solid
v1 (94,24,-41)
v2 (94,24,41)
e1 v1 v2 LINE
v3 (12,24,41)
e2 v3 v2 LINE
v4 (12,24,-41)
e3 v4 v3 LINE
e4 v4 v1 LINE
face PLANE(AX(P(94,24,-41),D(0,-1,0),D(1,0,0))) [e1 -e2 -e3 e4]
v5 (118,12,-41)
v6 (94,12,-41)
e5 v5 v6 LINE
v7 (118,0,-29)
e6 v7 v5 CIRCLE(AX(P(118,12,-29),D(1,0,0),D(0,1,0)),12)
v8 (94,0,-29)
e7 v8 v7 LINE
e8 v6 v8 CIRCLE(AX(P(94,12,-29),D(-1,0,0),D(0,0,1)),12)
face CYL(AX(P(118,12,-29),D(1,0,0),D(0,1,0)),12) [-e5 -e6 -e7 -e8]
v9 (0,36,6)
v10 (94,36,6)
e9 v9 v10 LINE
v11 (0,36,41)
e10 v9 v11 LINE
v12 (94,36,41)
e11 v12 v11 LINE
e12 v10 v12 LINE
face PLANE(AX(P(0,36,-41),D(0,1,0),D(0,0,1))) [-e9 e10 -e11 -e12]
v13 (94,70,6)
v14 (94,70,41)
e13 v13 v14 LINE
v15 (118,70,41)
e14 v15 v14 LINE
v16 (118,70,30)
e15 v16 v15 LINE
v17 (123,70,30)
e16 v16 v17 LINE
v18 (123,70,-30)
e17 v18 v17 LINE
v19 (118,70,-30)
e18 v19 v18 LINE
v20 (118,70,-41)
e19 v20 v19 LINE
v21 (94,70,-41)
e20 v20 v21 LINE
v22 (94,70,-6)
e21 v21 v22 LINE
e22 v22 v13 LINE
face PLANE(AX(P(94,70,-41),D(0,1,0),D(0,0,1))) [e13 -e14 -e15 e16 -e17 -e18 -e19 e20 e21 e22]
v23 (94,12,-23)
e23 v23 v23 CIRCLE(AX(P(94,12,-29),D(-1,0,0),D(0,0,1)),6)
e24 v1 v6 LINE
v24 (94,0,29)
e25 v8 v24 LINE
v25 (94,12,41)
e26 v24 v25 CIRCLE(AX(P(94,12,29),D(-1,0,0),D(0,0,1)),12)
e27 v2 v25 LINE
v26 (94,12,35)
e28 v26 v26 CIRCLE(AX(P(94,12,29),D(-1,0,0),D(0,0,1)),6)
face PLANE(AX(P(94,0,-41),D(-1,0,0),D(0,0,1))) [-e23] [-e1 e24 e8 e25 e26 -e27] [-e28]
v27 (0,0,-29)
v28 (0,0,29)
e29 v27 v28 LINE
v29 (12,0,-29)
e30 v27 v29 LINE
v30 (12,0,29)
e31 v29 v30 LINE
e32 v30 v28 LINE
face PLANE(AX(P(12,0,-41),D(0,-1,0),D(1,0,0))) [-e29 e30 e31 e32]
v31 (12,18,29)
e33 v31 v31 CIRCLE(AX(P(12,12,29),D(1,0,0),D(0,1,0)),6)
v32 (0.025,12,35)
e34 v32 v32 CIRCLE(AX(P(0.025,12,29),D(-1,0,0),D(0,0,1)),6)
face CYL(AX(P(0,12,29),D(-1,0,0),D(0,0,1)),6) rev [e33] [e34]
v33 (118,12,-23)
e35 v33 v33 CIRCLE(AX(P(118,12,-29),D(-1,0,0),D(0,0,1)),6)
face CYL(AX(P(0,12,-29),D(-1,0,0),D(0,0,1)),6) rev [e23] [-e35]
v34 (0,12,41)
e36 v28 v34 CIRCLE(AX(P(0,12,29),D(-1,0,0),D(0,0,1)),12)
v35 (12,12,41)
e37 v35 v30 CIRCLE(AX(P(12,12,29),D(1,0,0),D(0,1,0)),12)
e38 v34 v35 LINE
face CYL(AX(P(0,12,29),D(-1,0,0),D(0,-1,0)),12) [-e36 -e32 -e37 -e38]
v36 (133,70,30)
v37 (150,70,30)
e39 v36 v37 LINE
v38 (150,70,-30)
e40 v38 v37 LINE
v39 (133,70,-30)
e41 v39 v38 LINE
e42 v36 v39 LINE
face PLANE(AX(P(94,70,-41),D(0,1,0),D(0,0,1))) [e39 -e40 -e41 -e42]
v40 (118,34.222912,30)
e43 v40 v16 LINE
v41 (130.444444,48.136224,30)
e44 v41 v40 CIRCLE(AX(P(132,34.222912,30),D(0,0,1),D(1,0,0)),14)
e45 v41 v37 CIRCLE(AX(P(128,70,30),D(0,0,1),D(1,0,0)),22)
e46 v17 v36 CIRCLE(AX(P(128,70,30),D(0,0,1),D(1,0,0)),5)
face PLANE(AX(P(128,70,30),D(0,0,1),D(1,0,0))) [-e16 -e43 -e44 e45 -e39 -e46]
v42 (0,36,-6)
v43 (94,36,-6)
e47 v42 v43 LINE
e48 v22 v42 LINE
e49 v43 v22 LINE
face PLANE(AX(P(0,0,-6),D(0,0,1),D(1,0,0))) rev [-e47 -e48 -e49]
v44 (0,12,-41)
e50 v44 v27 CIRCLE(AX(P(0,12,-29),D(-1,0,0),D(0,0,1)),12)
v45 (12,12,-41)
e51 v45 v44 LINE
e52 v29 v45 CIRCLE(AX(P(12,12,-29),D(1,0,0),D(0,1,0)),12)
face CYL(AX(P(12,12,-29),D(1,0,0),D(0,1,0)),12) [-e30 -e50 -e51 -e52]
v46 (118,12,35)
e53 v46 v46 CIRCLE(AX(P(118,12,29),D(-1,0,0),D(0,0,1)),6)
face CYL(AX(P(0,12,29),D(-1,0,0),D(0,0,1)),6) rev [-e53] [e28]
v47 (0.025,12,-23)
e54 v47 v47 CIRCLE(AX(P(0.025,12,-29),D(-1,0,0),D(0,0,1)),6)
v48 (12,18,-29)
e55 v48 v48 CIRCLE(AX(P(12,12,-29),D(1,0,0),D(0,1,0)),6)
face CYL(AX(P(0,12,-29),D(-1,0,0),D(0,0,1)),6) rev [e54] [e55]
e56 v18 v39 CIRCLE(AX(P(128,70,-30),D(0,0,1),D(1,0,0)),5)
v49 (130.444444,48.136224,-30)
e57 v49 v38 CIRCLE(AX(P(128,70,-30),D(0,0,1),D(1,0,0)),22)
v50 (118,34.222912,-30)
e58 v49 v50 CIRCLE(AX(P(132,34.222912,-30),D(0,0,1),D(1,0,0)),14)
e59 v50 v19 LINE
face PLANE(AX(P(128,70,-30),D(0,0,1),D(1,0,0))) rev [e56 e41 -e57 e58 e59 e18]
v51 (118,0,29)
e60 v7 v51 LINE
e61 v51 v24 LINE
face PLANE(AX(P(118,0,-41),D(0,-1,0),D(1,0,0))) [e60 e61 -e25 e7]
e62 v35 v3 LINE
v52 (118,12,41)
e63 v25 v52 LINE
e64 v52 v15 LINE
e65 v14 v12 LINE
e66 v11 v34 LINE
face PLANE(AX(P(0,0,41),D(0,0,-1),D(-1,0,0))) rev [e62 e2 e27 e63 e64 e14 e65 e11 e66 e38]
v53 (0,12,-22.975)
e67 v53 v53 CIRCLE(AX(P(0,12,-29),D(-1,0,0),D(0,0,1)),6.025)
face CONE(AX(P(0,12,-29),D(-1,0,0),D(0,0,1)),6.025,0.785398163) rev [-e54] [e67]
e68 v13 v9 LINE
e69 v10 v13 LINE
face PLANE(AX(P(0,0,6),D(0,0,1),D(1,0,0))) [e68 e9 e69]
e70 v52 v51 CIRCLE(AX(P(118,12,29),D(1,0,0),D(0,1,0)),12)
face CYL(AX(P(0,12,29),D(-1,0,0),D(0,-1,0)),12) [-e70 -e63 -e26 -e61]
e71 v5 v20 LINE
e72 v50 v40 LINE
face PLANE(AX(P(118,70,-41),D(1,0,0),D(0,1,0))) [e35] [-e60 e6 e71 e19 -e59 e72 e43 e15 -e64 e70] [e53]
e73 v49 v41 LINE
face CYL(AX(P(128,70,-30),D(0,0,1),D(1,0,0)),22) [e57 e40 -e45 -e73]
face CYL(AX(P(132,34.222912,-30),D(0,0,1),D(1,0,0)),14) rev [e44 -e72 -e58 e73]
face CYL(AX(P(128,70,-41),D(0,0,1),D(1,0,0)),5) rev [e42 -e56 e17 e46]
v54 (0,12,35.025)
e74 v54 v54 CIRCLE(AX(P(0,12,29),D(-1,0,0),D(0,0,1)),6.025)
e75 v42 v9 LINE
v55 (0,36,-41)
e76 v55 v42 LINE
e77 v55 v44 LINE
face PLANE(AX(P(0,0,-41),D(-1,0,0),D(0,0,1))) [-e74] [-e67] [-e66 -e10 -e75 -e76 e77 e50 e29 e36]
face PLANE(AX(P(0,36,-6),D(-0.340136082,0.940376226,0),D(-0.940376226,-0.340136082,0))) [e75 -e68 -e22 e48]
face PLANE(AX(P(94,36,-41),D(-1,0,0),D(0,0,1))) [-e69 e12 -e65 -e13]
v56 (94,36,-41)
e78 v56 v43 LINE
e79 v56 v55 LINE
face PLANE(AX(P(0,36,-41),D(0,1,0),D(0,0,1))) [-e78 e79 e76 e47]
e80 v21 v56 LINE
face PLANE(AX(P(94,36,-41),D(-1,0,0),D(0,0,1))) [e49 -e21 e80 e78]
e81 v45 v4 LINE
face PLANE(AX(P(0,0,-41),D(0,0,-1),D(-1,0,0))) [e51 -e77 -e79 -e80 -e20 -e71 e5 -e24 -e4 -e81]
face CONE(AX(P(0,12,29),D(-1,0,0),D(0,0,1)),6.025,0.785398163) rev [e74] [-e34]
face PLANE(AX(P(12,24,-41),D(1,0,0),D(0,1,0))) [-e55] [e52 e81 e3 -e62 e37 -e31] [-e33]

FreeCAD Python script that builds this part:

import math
import FreeCAD as App
import Part
import Sketcher

V = App.Vector


def edges_at(feature, points):
    """Names of the edges that pass closest to the given points."""
    edges = feature.Shape.Edges
    near = lambda p: min(range(len(edges)), key=lambda i: edges[i].distToShape(Part.Vertex(*p))[0])
    return sorted({f"Edge{near(p) + 1}" for p in points})


def add_polygon(sketch, points):
    """Adds a closed chain of lines whose ends are joined by coincident constraints."""
    first, n = sketch.GeometryCount, len(points)
    for a, b in zip(points, points[1:] + points[:1]):
        sketch.addGeometry(Part.LineSegment(App.Vector(*a, 0), App.Vector(*b, 0)), False)
    for i in range(n):
        sketch.addConstraint(Sketcher.Constraint("Coincident", first + i, 2, first + (i + 1) % n, 1))

doc = App.newDocument("Part")
params = doc.addObject("Spreadsheet::Sheet", "Params")
for row, (alias, value) in enumerate([
    ("sketch1_width", "12 mm"),
    ("sketch1_width2", "82 mm"),
    ("sketch1_width3", "24 mm"),
    ("sketch1_height", "36 mm"),
    ("sketch1_height2", "70 mm"),
    ("pad1_length", "41 mm"),
    ("pad1_length2", "41 mm"),
    ("fillet_radius", "12 mm"),
    ("sketch2_diameter", "12 mm"),
    ("hole_diameter", "12 mm"),
    ("hole_csink_diameter", "12.05 mm"),
    ("sketch3_radius", "14 mm"),
    ("sketch3_radius2", "22 mm"),
    ("sketch3_width", "32 mm"),
    ("pad2_length", "30 mm"),
    ("pad2_length2", "30 mm"),
    ("sketch4_diameter", "10 mm"),
    ("sketch5_width", "94 mm"),
    ("sketch5_height", "34 mm"),
    ("pad3_length", "6 mm"),
    ("pad3_length2", "6 mm"),
], start=1):
    params.set(f"A{row}", alias)
    params.set(f"B{row}", "=" + value)
    params.setAlias(f"B{row}", alias)

body = doc.addObject("PartDesign::Body", "Body")

# Sketch on XY plane
sketch1 = body.newObject("Sketcher::SketchObject", "Sketch")
sketch1.AttachmentSupport = (doc.getObject("XY_Plane"), [""])
sketch1.MapMode = "FlatFace"
add_polygon(sketch1, [(0, 36), (0, 0), (12, 0), (12, 24), (94, 24), (94, 0), (118, 0), (118, 70), (94, 70), (94, 36)])  # lines 0-9
sketch1.addConstraint(Sketcher.Constraint("Vertical", 0))
sketch1.addConstraint(Sketcher.Constraint("Horizontal", 1))
sketch1.addConstraint(Sketcher.Constraint("Vertical", 2))
sketch1.addConstraint(Sketcher.Constraint("Horizontal", 3))
sketch1.addConstraint(Sketcher.Constraint("Vertical", 4))
sketch1.addConstraint(Sketcher.Constraint("Horizontal", 5))
sketch1.addConstraint(Sketcher.Constraint("Vertical", 6))
sketch1.addConstraint(Sketcher.Constraint("Horizontal", 7))
sketch1.addConstraint(Sketcher.Constraint("Vertical", 8))
sketch1.addConstraint(Sketcher.Constraint("Horizontal", 9))
sketch1.addConstraint(Sketcher.Constraint("Coincident", 0, 2, -1, 1))
sketch1.addConstraint(Sketcher.Constraint("PointOnObject", 4, 2, -1))
sketch1.addConstraint(Sketcher.Constraint("Vertical", 4, 2, 7, 2))
sketch1.addConstraint(Sketcher.Constraint("Equal", 7, 2))
sketch1.addConstraint(Sketcher.Constraint("DistanceX", 1, 1, 1, 2, 12.0))
sketch1.addConstraint(Sketcher.Constraint("DistanceX", 3, 1, 3, 2, 82.0))
sketch1.addConstraint(Sketcher.Constraint("DistanceX", 5, 1, 5, 2, 24.0))
sketch1.addConstraint(Sketcher.Constraint("DistanceY", 0, 2, 0, 1, 36.0))
sketch1.addConstraint(Sketcher.Constraint("DistanceY", 6, 1, 6, 2, 70.0))
sketch1.setExpression("Constraints[24]", "Params.sketch1_width")
sketch1.setExpression("Constraints[25]", "Params.sketch1_width2")
sketch1.setExpression("Constraints[26]", "Params.sketch1_width3")
sketch1.setExpression("Constraints[27]", "Params.sketch1_height")
sketch1.setExpression("Constraints[28]", "Params.sketch1_height2")
pad1 = body.newObject("PartDesign::Pad", "Pad")
pad1.Profile = sketch1
pad1.Type = "TwoLengths"
pad1.setExpression("Length", "Params.pad1_length")
pad1.setExpression("Length2", "Params.pad1_length2")
doc.recompute()

fillet = body.newObject("PartDesign::Fillet", "Fillet")
fillet.Base = (pad1, edges_at(pad1, [
    (106, 0, -41),
    (6, 0, 41),
    (106, 0, 41),
    (6, 0, -41),
]))
fillet.setExpression("Radius", "Params.fillet_radius")

# Sketch on YZ plane
sketch2 = body.newObject("Sketcher::SketchObject", "Sketch001")
sketch2.AttachmentSupport = (doc.getObject("YZ_Plane"), [""])
sketch2.MapMode = "FlatFace"
sketch2.addGeometry(Part.Circle(V(12, -29, 0), V(0, 0, 1), 6), False)
sketch2.addGeometry(Part.Circle(V(12, 29, 0), V(0, 0, 1), 6), False)
sketch2.addConstraint(Sketcher.Constraint("Equal", 0, 1))
sketch2.addConstraint(Sketcher.Constraint("Symmetric", 0, 3, 1, 3, -1))
sketch2.addConstraint(Sketcher.Constraint("Diameter", 0, 12.0))
sketch2.addConstraint(Sketcher.Constraint("DistanceX", -1, 1, 0, 3, 12.0))
sketch2.addConstraint(Sketcher.Constraint("DistanceY", 0, 3, -1, 1, 29.0))
sketch2.setExpression("Constraints[2]", "Params.sketch2_diameter")
doc.recompute()
hole = body.newObject("PartDesign::Hole", "Hole")
hole.Profile = sketch2
hole.ThreadType = "None"
hole.setExpression("Diameter", "Params.hole_diameter")
hole.DepthType = "ThroughAll"
hole.HoleCutType = "Countersink"
hole.setExpression("HoleCutDiameter", "Params.hole_csink_diameter")
hole.HoleCutCountersinkAngle = 90
hole.Reversed = True

# Sketch on XY plane
sketch3 = body.newObject("Sketcher::SketchObject", "Sketch002")
sketch3.AttachmentSupport = (doc.getObject("XY_Plane"), [""])
sketch3.MapMode = "FlatFace"
sketch3.addGeometry(Part.LineSegment(V(118, 70, 0), V(118, 34, 0)), False)
sketch3.addGeometry(Part.ArcOfCircle(Part.Circle(V(132, 34, 0), V(0, 0, 1), 14), math.radians(96), math.radians(180)), False)
sketch3.addGeometry(Part.ArcOfCircle(Part.Circle(V(128, 70, 0), V(0, 0, 1), 22), math.radians(-84), math.radians(0)), False)
sketch3.addGeometry(Part.LineSegment(V(150, 70, 0), V(118, 70, 0)), False)
sketch3.addConstraint(Sketcher.Constraint("Tangent", 0, 2, 1, 2))
sketch3.addConstraint(Sketcher.Constraint("Tangent", 1, 1, 2, 1))
sketch3.addConstraint(Sketcher.Constraint("Coincident", 2, 2, 3, 1))
sketch3.addConstraint(Sketcher.Constraint("Coincident", 3, 2, 0, 1))
sketch3.addConstraint(Sketcher.Constraint("Vertical", 0))
sketch3.addConstraint(Sketcher.Constraint("Horizontal", 3))
sketch3.addConstraint(Sketcher.Constraint("Radius", 1, 14.0))
sketch3.addConstraint(Sketcher.Constraint("Radius", 2, 22.0))
sketch3.addConstraint(Sketcher.Constraint("DistanceX", 3, 2, 3, 1, 32.0))
sketch3.addConstraint(Sketcher.Constraint("DistanceX", -1, 1, 1, 3, 132.0))
sketch3.addConstraint(Sketcher.Constraint("DistanceY", -1, 1, 2, 3, 70.0))
sketch3.addConstraint(Sketcher.Constraint("DistanceY", -1, 1, 2, 2, 70.0))
sketch3.setExpression("Constraints[6]", "Params.sketch3_radius")
sketch3.setExpression("Constraints[7]", "Params.sketch3_radius2")
sketch3.setExpression("Constraints[8]", "Params.sketch3_width")
pad2 = body.newObject("PartDesign::Pad", "Pad001")
pad2.Profile = sketch3
pad2.Type = "TwoLengths"
pad2.setExpression("Length", "Params.pad2_length")
pad2.setExpression("Length2", "Params.pad2_length2")

# Sketch on XY plane
sketch4 = body.newObject("Sketcher::SketchObject", "Sketch003")
sketch4.AttachmentSupport = (doc.getObject("XY_Plane"), [""])
sketch4.MapMode = "FlatFace"
sketch4.AttachmentOffset = App.Placement(V(0, 0, 30), App.Rotation())
sketch4.addGeometry(Part.Circle(V(128, 70, 0), V(0, 0, 1), 5), False)
sketch4.addConstraint(Sketcher.Constraint("Diameter", 0, 10.0))
sketch4.addConstraint(Sketcher.Constraint("DistanceX", -1, 1, 0, 3, 128.0))
sketch4.addConstraint(Sketcher.Constraint("DistanceY", -1, 1, 0, 3, 70.0))
sketch4.setExpression("Constraints[0]", "Params.sketch4_diameter")
pocket1 = body.newObject("PartDesign::Pocket", "Pocket")
pocket1.Profile = sketch4
pocket1.Type = "ThroughAll"

# Sketch on XY plane
sketch5 = body.newObject("Sketcher::SketchObject", "Sketch004")
sketch5.AttachmentSupport = (doc.getObject("XY_Plane"), [""])
sketch5.MapMode = "FlatFace"
add_polygon(sketch5, [(94, 70), (0, 36), (94, 36)])  # lines 0-2
sketch5.addConstraint(Sketcher.Constraint("Horizontal", 1))
sketch5.addConstraint(Sketcher.Constraint("Vertical", 2))
sketch5.addConstraint(Sketcher.Constraint("PointOnObject", 0, 2, -2))
sketch5.addConstraint(Sketcher.Constraint("DistanceX", 1, 1, 1, 2, 94.0))
sketch5.addConstraint(Sketcher.Constraint("DistanceY", 2, 1, 2, 2, 34.0))
sketch5.addConstraint(Sketcher.Constraint("DistanceY", -1, 1, 0, 2, 36.0))
sketch5.setExpression("Constraints[6]", "Params.sketch5_width")
sketch5.setExpression("Constraints[7]", "Params.sketch5_height")
pad3 = body.newObject("PartDesign::Pad", "Pad002")
pad3.Profile = sketch5
pad3.Type = "TwoLengths"
pad3.setExpression("Length", "Params.pad3_length")
pad3.setExpression("Length2", "Params.pad3_length2")

doc.recompute()
